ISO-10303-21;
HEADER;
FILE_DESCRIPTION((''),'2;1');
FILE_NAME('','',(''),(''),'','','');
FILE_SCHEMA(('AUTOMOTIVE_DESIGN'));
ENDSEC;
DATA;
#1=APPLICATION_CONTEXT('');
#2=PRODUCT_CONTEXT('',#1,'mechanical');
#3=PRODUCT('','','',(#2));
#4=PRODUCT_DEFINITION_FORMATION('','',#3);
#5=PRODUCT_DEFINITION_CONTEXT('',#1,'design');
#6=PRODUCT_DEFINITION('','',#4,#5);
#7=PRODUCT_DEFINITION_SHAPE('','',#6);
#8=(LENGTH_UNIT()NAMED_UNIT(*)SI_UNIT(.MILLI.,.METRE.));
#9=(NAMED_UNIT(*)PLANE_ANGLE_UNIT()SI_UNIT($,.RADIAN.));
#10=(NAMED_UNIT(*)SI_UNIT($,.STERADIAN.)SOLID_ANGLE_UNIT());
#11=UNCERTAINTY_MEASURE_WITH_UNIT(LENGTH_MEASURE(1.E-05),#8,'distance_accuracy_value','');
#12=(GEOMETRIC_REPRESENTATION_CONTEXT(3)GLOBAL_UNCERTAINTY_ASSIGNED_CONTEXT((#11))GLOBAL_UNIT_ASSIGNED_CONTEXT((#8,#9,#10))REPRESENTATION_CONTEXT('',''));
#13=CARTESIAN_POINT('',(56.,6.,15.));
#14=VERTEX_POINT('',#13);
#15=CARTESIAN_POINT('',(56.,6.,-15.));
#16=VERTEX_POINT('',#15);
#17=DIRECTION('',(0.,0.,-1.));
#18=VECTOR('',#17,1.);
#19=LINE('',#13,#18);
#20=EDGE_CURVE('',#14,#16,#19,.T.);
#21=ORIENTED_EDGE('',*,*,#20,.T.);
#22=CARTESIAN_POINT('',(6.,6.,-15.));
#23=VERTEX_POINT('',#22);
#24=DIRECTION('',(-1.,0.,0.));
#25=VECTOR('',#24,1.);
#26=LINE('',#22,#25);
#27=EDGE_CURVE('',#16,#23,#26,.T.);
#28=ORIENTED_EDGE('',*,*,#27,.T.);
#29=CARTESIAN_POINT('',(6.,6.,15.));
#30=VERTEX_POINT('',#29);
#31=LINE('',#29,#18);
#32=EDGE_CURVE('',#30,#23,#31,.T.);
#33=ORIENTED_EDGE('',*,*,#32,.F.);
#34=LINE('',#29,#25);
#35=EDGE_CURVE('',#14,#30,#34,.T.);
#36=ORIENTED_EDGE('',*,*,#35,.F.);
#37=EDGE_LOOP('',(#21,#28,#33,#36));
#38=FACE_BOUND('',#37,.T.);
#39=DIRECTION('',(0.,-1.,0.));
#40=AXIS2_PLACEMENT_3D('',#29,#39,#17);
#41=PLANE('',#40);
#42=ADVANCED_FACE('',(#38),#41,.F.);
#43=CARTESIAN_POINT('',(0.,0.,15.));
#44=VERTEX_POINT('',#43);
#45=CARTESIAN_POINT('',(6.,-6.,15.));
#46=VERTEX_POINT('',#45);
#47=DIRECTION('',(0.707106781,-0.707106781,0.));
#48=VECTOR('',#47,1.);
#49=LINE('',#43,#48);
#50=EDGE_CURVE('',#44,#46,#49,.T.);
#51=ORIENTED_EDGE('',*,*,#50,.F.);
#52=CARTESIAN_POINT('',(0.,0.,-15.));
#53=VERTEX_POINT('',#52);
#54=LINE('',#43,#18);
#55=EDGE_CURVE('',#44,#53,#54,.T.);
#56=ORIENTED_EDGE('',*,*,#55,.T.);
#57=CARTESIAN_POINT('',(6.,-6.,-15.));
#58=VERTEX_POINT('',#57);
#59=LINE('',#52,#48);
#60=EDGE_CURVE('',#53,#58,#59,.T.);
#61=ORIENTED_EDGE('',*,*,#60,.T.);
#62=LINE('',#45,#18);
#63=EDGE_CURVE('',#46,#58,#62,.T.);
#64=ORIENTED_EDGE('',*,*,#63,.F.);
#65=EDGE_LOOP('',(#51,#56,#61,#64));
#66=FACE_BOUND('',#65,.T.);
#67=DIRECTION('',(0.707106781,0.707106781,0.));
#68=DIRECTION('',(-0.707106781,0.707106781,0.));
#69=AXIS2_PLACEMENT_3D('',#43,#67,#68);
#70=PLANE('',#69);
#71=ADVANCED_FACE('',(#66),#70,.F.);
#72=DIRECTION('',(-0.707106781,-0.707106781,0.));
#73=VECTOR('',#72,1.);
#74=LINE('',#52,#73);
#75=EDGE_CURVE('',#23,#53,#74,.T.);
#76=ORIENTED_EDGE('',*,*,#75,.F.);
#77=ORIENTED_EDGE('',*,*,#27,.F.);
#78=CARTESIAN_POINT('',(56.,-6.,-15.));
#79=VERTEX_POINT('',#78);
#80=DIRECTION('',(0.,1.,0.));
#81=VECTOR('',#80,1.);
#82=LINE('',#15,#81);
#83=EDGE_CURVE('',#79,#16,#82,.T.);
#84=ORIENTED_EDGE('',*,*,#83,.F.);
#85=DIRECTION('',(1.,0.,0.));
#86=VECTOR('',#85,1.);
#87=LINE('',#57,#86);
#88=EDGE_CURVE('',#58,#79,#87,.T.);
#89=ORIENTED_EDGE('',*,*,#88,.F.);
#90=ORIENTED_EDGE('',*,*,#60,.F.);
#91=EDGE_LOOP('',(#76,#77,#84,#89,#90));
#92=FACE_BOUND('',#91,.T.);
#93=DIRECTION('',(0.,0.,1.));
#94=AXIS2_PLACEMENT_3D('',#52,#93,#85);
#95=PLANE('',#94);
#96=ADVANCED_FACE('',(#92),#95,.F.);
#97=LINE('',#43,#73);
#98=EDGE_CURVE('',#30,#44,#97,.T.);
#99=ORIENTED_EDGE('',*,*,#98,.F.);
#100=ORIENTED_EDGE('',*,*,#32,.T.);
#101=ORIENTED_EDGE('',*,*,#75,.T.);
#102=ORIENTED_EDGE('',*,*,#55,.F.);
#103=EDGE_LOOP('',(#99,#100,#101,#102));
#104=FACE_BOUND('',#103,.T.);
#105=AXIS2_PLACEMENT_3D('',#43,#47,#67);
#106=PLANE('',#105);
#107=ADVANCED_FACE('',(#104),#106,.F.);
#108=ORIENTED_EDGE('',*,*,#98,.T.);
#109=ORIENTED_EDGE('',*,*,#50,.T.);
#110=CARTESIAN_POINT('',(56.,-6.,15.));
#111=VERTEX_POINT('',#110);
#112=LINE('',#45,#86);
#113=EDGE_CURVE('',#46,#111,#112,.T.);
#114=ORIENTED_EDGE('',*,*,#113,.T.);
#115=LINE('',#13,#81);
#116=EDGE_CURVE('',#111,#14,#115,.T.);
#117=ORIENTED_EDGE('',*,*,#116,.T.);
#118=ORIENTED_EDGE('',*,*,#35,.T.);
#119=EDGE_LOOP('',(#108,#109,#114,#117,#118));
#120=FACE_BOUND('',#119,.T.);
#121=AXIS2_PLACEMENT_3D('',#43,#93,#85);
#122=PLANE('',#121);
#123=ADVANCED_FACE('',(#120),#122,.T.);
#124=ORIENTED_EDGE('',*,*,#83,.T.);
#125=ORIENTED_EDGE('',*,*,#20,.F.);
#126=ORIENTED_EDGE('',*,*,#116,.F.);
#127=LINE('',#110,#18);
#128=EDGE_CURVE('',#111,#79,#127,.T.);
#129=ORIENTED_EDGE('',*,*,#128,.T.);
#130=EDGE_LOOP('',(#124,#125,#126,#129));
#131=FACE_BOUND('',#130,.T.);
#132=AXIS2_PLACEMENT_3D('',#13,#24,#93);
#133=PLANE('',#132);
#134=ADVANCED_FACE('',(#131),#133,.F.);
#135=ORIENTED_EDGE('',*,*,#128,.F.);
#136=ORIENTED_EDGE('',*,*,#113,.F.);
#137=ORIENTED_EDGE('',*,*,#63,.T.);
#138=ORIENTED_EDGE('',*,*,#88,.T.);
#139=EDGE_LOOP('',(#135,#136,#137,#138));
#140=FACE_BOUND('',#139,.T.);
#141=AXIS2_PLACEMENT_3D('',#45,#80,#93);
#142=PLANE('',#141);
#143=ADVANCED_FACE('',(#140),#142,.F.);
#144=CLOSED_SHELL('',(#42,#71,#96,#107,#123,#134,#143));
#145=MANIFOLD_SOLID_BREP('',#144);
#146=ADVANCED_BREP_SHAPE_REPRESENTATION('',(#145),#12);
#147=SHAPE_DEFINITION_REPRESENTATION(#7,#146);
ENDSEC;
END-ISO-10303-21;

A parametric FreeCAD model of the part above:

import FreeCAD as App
import Part
import Sketcher

V = App.Vector


def add_polygon(sketch, points):
    """Adds a closed chain of lines whose ends are joined by coincident constraints."""
    first, n = sketch.GeometryCount, len(points)
    for a, b in zip(points, points[1:] + points[:1]):
        sketch.addGeometry(Part.LineSegment(App.Vector(*a, 0), App.Vector(*b, 0)), False)
    for i in range(n):
        sketch.addConstraint(Sketcher.Constraint("Coincident", first + i, 2, first + (i + 1) % n, 1))

doc = App.newDocument("Part")
body = doc.addObject("PartDesign::Body", "Body")

# Sketch on XY plane
sketch1 = body.newObject("Sketcher::SketchObject", "Sketch")
sketch1.AttachmentSupport = (doc.getObject("XY_Plane"), [""])
sketch1.MapMode = "FlatFace"
add_polygon(sketch1, [(6, 6), (0, 0), (6, -6), (56, -6), (56, 6)])  # lines 0-4
sketch1.addConstraint([
    Sketcher.Constraint("Horizontal", 2),
    Sketcher.Constraint("Vertical", 3),
    Sketcher.Constraint("Horizontal", 4),
    Sketcher.Constraint("Coincident", 0, 2, -1, 1),
    Sketcher.Constraint("Symmetric", 1, 2, 4, 2, -1),
    Sketcher.Constraint("Perpendicular", 0, 1),
    Sketcher.Constraint("DistanceX", 2, 1, 2, 2, 50.0),
    Sketcher.Constraint("DistanceY", 3, 1, 3, 2, 12.0),
])
pad1 = body.newObject("PartDesign::Pad", "Pad")
pad1.Profile = sketch1
pad1.Length = 30
pad1.Midplane = True

doc.recompute()
